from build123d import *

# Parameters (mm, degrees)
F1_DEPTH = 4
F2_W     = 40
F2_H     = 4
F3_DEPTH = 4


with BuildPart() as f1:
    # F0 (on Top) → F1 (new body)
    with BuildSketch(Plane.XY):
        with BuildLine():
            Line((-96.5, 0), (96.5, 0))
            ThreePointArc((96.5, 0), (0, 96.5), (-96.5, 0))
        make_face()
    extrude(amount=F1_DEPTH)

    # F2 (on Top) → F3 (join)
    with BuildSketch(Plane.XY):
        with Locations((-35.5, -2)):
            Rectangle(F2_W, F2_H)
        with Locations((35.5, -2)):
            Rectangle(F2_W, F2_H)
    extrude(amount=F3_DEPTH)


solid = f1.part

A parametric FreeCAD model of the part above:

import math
import FreeCAD as App
import Part
import Sketcher
Q = App.Units.Quantity


def add_polygon(sketch, points):
    """Adds a closed chain of lines whose ends are joined by coincident constraints."""
    first, n = sketch.GeometryCount, len(points)
    for a, b in zip(points, points[1:] + points[:1]):
        sketch.addGeometry(Part.LineSegment(App.Vector(*a, 0), App.Vector(*b, 0)), False)
    for i in range(n):
        sketch.addConstraint(Sketcher.Constraint("Coincident", first + i, 2, first + (i + 1) % n, 1))

doc = App.newDocument("Part")
body = doc.addObject("PartDesign::Body", "Body")

# Sketch on XY plane
sketch1 = body.newObject("Sketcher::SketchObject", "Sketch")
sketch1.AttachmentSupport = (doc.getObject("XY_Plane"), [""])
sketch1.MapMode = "FlatFace"
sketch1.addGeometry([
    Part.LineSegment(App.Vector(-96.5, 0, 0), App.Vector(96.5, 0, 0)),
    Part.ArcOfCircle(Part.Circle(App.Vector(0, 0, 0), App.Vector(0, 0, 1), 96.5), math.radians(0), math.radians(180)),
], False)
sketch1.addConstraint([
    Sketcher.Constraint("Coincident", 0, 1, 1, 2),
    Sketcher.Constraint("Coincident", 1, 1, 0, 2),
    Sketcher.Constraint("Horizontal", 0),
    Sketcher.Constraint("Coincident", 1, 3, -1, 1),
    Sketcher.Constraint("PointOnObject", 0, 1, -1),
    Sketcher.Constraint("Radius", 1, Q("96.5 mm")),
])
pad1 = body.newObject("PartDesign::Pad", "Pad")
pad1.Profile = sketch1
pad1.Length = 4

# Sketch on XY plane
sketch2 = body.newObject("Sketcher::SketchObject", "Sketch001")
sketch2.AttachmentSupport = (doc.getObject("XY_Plane"), [""])
sketch2.MapMode = "FlatFace"
add_polygon(sketch2, [(-55.5, 0), (-55.5, -4), (-15.5, -4), (-15.5, 0)])  # lines 0-3
add_polygon(sketch2, [(15.5, 0), (15.5, -4), (55.5, -4), (55.5, 0)])  # lines 4-7
sketch2.addConstraint([
    Sketcher.Constraint("Vertical", 0),
    Sketcher.Constraint("Horizontal", 1),
    Sketcher.Constraint("Vertical", 2),
    Sketcher.Constraint("Horizontal", 3),
    Sketcher.Constraint("Vertical", 4),
    Sketcher.Constraint("Horizontal", 5),
    Sketcher.Constraint("Vertical", 6),
    Sketcher.Constraint("Horizontal", 7),
    Sketcher.Constraint("Symmetric", 3, 2, 6, 2, -1, 1),
    Sketcher.Constraint("Symmetric", 1, 2, 4, 2, -2),
    Sketcher.Constraint("PointOnObject", 2, 2, -1),
    Sketcher.Constraint("DistanceX", 1, 1, 1, 2, Q("40 mm")),
    Sketcher.Constraint("DistanceY", 0, 2, 0, 1, Q("4 mm")),
    Sketcher.Constraint("DistanceX", 1, 2, 4, 2, Q("31 mm")),
])
pad2 = body.newObject("PartDesign::Pad", "Pad001")
pad2.Profile = sketch2
pad2.Length = 4

doc.recompute()
